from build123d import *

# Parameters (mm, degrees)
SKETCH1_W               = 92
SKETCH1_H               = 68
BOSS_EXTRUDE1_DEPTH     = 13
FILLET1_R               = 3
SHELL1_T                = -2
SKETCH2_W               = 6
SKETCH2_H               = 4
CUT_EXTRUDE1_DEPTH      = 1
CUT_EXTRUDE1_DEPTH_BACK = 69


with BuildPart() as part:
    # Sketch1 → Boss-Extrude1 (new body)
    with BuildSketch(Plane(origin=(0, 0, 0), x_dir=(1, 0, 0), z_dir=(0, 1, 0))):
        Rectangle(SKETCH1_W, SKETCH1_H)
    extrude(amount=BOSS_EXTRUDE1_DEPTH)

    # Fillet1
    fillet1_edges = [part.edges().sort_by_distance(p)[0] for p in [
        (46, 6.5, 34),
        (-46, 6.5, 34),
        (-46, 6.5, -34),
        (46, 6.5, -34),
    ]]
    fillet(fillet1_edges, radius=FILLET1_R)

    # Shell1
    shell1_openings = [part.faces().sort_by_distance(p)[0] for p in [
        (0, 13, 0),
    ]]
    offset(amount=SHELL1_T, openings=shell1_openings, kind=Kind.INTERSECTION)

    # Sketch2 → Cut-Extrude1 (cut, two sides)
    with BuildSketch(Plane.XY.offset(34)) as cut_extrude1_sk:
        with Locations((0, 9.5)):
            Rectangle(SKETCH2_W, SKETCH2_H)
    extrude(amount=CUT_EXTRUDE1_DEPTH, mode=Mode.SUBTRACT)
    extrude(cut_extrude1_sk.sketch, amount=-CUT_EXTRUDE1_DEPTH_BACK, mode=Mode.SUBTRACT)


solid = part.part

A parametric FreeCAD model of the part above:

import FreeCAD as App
import Part
import Sketcher
from FreeCAD import Vector
Q = App.Units.Quantity


def edges_at(feature, points):
    """Names of the edges that pass closest to the given points."""
    edges = feature.Shape.Edges
    near = lambda p: min(range(len(edges)), key=lambda i: edges[i].distToShape(Part.Vertex(*p))[0])
    return sorted({f"Edge{near(p) + 1}" for p in points})


def faces_at(feature, points):
    """Names of the faces that lie closest to the given points."""
    faces = feature.Shape.Faces
    near = lambda p: min(range(len(faces)), key=lambda i: faces[i].distToShape(Part.Vertex(*p))[0])
    return sorted({f"Face{near(p) + 1}" for p in points})


def add_polygon(sketch, points):
    """Adds a closed chain of lines whose ends are joined by coincident constraints."""
    first, n = sketch.GeometryCount, len(points)
    for a, b in zip(points, points[1:] + points[:1]):
        sketch.addGeometry(Part.LineSegment(App.Vector(*a, 0), App.Vector(*b, 0)), False)
    for i in range(n):
        sketch.addConstraint(Sketcher.Constraint("Coincident", first + i, 2, first + (i + 1) % n, 1))

doc = App.newDocument("Part")
params = doc.addObject("Spreadsheet::Sheet", "Params")
for row, (alias, value) in enumerate([
    ("sketch1_width", "92 mm"),
    ("sketch1_height", "68 mm"),
    ("pad1_length", "13 mm"),
    ("fillet_radius", "3 mm"),
    ("thickness_wall", "2 mm"),
    ("sketch2_width", "6 mm"),
    ("sketch2_height", "4 mm"),
], start=1):
    params.set(f"A{row}", alias)
    params.set(f"B{row}", "=" + value)
    params.setAlias(f"B{row}", alias)

body = doc.addObject("PartDesign::Body", "Body")

# Sketch on XZ plane
sketch1 = doc.addObject("Sketcher::SketchObject", "Sketch")
body.addObject(sketch1)
sketch1.AttachmentSupport = (doc.XZ_Plane, [""])
sketch1.MapMode = "FlatFace"
add_polygon(sketch1, [(-46, -34), (-46, 34), (46, 34), (46, -34)])  # lines 0-3
sketch1.addConstraint([
    Sketcher.Constraint("Vertical", 0),
    Sketcher.Constraint("Horizontal", 1),
    Sketcher.Constraint("Vertical", 2),
    Sketcher.Constraint("Horizontal", 3),
    Sketcher.Constraint("Symmetric", 0, 2, 2, 2, -1, 1),
    Sketcher.Constraint("DistanceX", 1, 1, 1, 2, Q("92 mm")),
    Sketcher.Constraint("DistanceY", 0, 1, 0, 2, Q("68 mm")),
])
sketch1.setExpression("Constraints[9]", "Params.sketch1_width")
sketch1.setExpression("Constraints[10]", "Params.sketch1_height")
pad1 = doc.addObject("PartDesign::Pad", "Pad")
body.addObject(pad1)
pad1.Profile = sketch1
pad1.setExpression("Length", "Params.pad1_length")
pad1.Reversed = True
doc.recompute()

fillet = doc.addObject("PartDesign::Fillet", "Fillet")
body.addObject(fillet)
fillet.Base = (pad1, edges_at(pad1, [
    (46, 6.5, 34),
    (-46, 6.5, 34),
    (-46, 6.5, -34),
    (46, 6.5, -34),
]))
fillet.setExpression("Radius", "Params.fillet_radius")
doc.recompute()

thickness = doc.addObject("PartDesign::Thickness", "Thickness")
body.addObject(thickness)
thickness.Base = (fillet, faces_at(fillet, [(0, 13, 0)]))
thickness.setExpression("Value", "Params.thickness_wall")
thickness.Reversed = True
thickness.Join = "Intersection"

# Sketch on XY plane
sketch2 = doc.addObject("Sketcher::SketchObject", "Sketch001")
body.addObject(sketch2)
sketch2.AttachmentSupport = (doc.XY_Plane, [""])
sketch2.MapMode = "FlatFace"
sketch2.AttachmentOffset = App.Placement(Vector(0, 0, 34), App.Rotation())
add_polygon(sketch2, [(-3, 11.5), (-3, 7.5), (3, 7.5), (3, 11.5)])  # lines 0-3
sketch2.addConstraint([
    Sketcher.Constraint("Vertical", 0),
    Sketcher.Constraint("Horizontal", 1),
    Sketcher.Constraint("Vertical", 2),
    Sketcher.Constraint("Horizontal", 3),
    Sketcher.Constraint("DistanceX", 1, 1, 1, 2, Q("6 mm")),
    Sketcher.Constraint("DistanceY", 0, 2, 0, 1, Q("4 mm")),
    Sketcher.Constraint("DistanceX", 0, 2, -1, 1, Q("3 mm")),
    Sketcher.Constraint("DistanceY", -1, 1, 0, 2, Q("7.5 mm")),
])
sketch2.setExpression("Constraints[8]", "Params.sketch2_width")
sketch2.setExpression("Constraints[9]", "Params.sketch2_height")
pocket1 = doc.addObject("PartDesign::Pocket", "Pocket")
body.addObject(pocket1)
pocket1.Profile = sketch2
pocket1.Type = "ThroughAll"
pocket1.Midplane = True

doc.recompute()
